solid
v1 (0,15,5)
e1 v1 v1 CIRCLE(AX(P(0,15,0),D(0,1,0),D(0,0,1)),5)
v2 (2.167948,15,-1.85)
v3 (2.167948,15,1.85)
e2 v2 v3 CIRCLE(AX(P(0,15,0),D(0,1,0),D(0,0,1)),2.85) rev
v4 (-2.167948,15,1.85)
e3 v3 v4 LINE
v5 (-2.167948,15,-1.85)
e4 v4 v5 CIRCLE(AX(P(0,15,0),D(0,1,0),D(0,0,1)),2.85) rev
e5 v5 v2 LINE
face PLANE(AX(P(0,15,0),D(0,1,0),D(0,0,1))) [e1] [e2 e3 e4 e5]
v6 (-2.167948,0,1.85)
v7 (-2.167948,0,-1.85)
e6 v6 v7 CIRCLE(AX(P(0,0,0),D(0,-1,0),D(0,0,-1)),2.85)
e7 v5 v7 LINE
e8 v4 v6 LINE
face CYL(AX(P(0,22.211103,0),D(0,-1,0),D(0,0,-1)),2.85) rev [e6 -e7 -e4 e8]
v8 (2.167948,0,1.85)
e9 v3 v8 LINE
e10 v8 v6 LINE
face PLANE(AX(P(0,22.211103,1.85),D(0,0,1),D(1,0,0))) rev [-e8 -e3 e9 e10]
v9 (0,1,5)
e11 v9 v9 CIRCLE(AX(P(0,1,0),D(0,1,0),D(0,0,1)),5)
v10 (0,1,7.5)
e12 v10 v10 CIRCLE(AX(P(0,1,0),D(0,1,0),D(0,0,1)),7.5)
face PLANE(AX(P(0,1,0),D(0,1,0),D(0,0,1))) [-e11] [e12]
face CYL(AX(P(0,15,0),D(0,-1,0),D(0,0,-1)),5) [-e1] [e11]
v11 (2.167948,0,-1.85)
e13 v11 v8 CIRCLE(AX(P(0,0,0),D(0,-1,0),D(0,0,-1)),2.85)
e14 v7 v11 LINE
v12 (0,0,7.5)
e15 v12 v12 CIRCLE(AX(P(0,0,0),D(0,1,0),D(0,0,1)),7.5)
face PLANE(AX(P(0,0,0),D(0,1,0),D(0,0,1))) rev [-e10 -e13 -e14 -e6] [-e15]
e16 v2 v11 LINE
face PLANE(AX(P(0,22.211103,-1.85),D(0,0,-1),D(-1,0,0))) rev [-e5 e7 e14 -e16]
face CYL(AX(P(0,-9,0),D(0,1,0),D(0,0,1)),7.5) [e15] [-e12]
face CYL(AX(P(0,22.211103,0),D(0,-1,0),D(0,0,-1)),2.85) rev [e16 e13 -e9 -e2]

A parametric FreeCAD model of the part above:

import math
import FreeCAD as App
import Part
import Sketcher
from FreeCAD import Vector

doc = App.newDocument("Part")
body = doc.addObject("PartDesign::Body", "Body")

# Sketch on XZ plane
sketch1 = body.newObject("Sketcher::SketchObject", "Sketch")
sketch1.AttachmentSupport = (doc.getObject("XZ_Plane"), [""])
sketch1.MapMode = "FlatFace"
sketch1.addGeometry(Part.Circle(Vector(0, 0, 0), Vector(0, 0, 1), 10), False)
sketch1.addConstraint([
    Sketcher.Constraint("Coincident", 0, 3, -1, 1),
    Sketcher.Constraint("Diameter", 0, 20.0),
])
pad1 = body.newObject("PartDesign::Pad", "Pad")
pad1.Profile = sketch1
pad1.Length = 1
pad1.Reversed = True

# Sketch on XZ plane
sketch2 = body.newObject("Sketcher::SketchObject", "Sketch001")
sketch2.AttachmentSupport = (doc.getObject("XZ_Plane"), [""])
sketch2.MapMode = "FlatFace"
sketch2.AttachmentOffset = App.Placement(Vector(0, 0, -1), App.Rotation())
sketch2.addGeometry(Part.Circle(Vector(0, 0, 0), Vector(0, 0, 1), 5), False)
sketch2.addConstraint([
    Sketcher.Constraint("Coincident", 0, 3, -1, 1),
    Sketcher.Constraint("Diameter", 0, 10.0),
])
pad2 = body.newObject("PartDesign::Pad", "Pad001")
pad2.Profile = sketch2
pad2.Length = 14
pad2.Reversed = True

# Sketch on XZ plane
sketch3 = body.newObject("Sketcher::SketchObject", "Sketch002")
sketch3.AttachmentSupport = (doc.getObject("XZ_Plane"), [""])
sketch3.MapMode = "FlatFace"
sketch3.AttachmentOffset = App.Placement(Vector(0, 0, -15), App.Rotation())
sketch3.addGeometry([
    Part.ArcOfCircle(Part.Circle(Vector(0, 0, 0), Vector(0, 0, 1), 3), math.radians(138.189685), math.radians(221.810315)),  # 0
    Part.LineSegment(Vector(-2.236068, 2, 0), Vector(2.236068, 2, 0)),  # 1
    Part.ArcOfCircle(Part.Circle(Vector(0, 0, 0), Vector(0, 0, 1), 3), math.radians(0), math.radians(41.810315)),  # 2
    Part.ArcOfCircle(Part.Circle(Vector(0, 0, 0), Vector(0, 0, 1), 3), math.radians(-41.810315), math.radians(0)),  # 3
    Part.LineSegment(Vector(2.236068, -2, 0), Vector(-2.236068, -2, 0)),  # 4
], False)
sketch3.addConstraint([
    Sketcher.Constraint("Coincident", 0, 1, 1, 1),
    Sketcher.Constraint("Coincident", 1, 2, 2, 2),
    Sketcher.Constraint("Tangent", 2, 1, 3, 2),
    Sketcher.Constraint("Coincident", 3, 1, 4, 1),
    Sketcher.Constraint("Coincident", 4, 2, 0, 2),
    Sketcher.Constraint("Horizontal", 1),
    Sketcher.Constraint("Horizontal", 4),
    Sketcher.Constraint("Coincident", 0, 3, -1, 1),
    Sketcher.Constraint("Coincident", 2, 3, -1, 1),
    Sketcher.Constraint("Equal", 0, 2),
    Sketcher.Constraint("Equal", 2, 3),
    Sketcher.Constraint("PointOnObject", 2, 1, -1),
    Sketcher.Constraint("Vertical", 1, 2, 3, 1),
    Sketcher.Constraint("Radius", 0, 3.0),
    Sketcher.Constraint("DistanceY", -1, 1, 0, 1, 2.0),
])
pocket1 = body.newObject("PartDesign::Pocket", "Pocket")
pocket1.Profile = sketch3
pocket1.Length = 19
pocket1.Reversed = True

# Sketch on XZ plane
sketch4 = body.newObject("Sketcher::SketchObject", "Sketch003")
sketch4.AttachmentSupport = (doc.getObject("XZ_Plane"), [""])
sketch4.MapMode = "FlatFace"
sketch4.AttachmentOffset = App.Placement(Vector(0, 0, -1), App.Rotation())
sketch4.addGeometry(Part.Circle(Vector(0, 0, 0), Vector(0, 0, 1), 12.5), False)
sketch4.addConstraint([
    Sketcher.Constraint("Coincident", 0, 3, -1, 1),
    Sketcher.Constraint("Diameter", 0, 25.0),
])
pad3 = body.newObject("PartDesign::Pad", "Pad002")
pad3.Profile = sketch4
pad3.Length = 1

# Sketch on XZ plane
sketch5 = body.newObject("Sketcher::SketchObject", "Sketch004")
sketch5.AttachmentSupport = (doc.getObject("XZ_Plane"), [""])
sketch5.MapMode = "FlatFace"
sketch5.AttachmentOffset = App.Placement(Vector(0, 0, -1), App.Rotation())
sketch5.addGeometry([
    Part.LineSegment(Vector(2.236068, -2, 0), Vector(-2.236068, -2, 0)),
    Part.ArcOfCircle(Part.Circle(Vector(0, 0, 0), Vector(0, 0, 1), 3), math.radians(138.189685), math.radians(221.810315)),
    Part.LineSegment(Vector(-2.236068, 2, 0), Vector(2.236068, 2, 0)),
    Part.ArcOfCircle(Part.Circle(Vector(0, 0, 0), Vector(0, 0, 1), 3), math.radians(-41.810315), math.radians(41.810315)),
], False)
sketch5.addConstraint([
    Sketcher.Constraint("Coincident", 0, 2, 1, 2),
    Sketcher.Constraint("Coincident", 1, 1, 2, 1),
    Sketcher.Constraint("Coincident", 2, 2, 3, 2),
    Sketcher.Constraint("Coincident", 3, 1, 0, 1),
    Sketcher.Constraint("Horizontal", 0),
    Sketcher.Constraint("Horizontal", 2),
    Sketcher.Constraint("Coincident", 1, 3, -1, 1),
    Sketcher.Constraint("Coincident", 3, 3, -1, 1),
    Sketcher.Constraint("Equal", 1, 3),
    Sketcher.Constraint("Vertical", 0, 2, 1, 1),
    Sketcher.Constraint("Radius", 1, 3.0),
    Sketcher.Constraint("DistanceY", 0, 2, -1, 1, 2.0),
])
pocket2 = body.newObject("PartDesign::Pocket", "Pocket001")
pocket2.Profile = sketch5
pocket2.Length = 19
pocket2.Reversed = True

# Sketch on XZ plane
sketch6 = body.newObject("Sketcher::SketchObject", "Sketch005")
sketch6.AttachmentSupport = (doc.getObject("XZ_Plane"), [""])
sketch6.MapMode = "FlatFace"
sketch6.AttachmentOffset = App.Placement(Vector(0, 0, -15), App.Rotation())
sketch6.addGeometry([
    Part.LineSegment(Vector(2.236068, 2, 0), Vector(-2.236068, 2, 0)),  # 0
    Part.ArcOfCircle(Part.Circle(Vector(0, 0, 0), Vector(0, 0, 1), 3), math.radians(138.189685), math.radians(221.810315)),  # 1
    Part.LineSegment(Vector(-2.236068, -2, 0), Vector(2.236068, -2, 0)),  # 2
    Part.ArcOfCircle(Part.Circle(Vector(0, 0, 0), Vector(0, 0, 1), 3), math.radians(-41.810315), math.radians(41.810315)),  # 3
    Part.LineSegment(Vector(2.167948, -1.85, 0), Vector(-2.167948, -1.85, 0)),  # 4
    Part.ArcOfCircle(Part.Circle(Vector(0, 0, 0), Vector(0, 0, 1), 2.85), math.radians(139.524502), math.radians(220.475498)),  # 5
    Part.LineSegment(Vector(-2.167948, 1.85, 0), Vector(2.167948, 1.85, 0)),  # 6
    Part.ArcOfCircle(Part.Circle(Vector(0, 0, 0), Vector(0, 0, 1), 2.85), math.radians(-40.475498), math.radians(40.475498)),  # 7
], False)
sketch6.addConstraint([
    Sketcher.Constraint("Coincident", 0, 2, 1, 1),
    Sketcher.Constraint("Coincident", 1, 2, 2, 1),
    Sketcher.Constraint("Coincident", 2, 2, 3, 1),
    Sketcher.Constraint("Coincident", 3, 2, 0, 1),
    Sketcher.Constraint("Coincident", 4, 2, 5, 2),
    Sketcher.Constraint("Coincident", 5, 1, 6, 1),
    Sketcher.Constraint("Coincident", 6, 2, 7, 2),
    Sketcher.Constraint("Coincident", 7, 1, 4, 1),
    Sketcher.Constraint("Horizontal", 0),
    Sketcher.Constraint("Horizontal", 2),
    Sketcher.Constraint("Horizontal", 4),
    Sketcher.Constraint("Horizontal", 6),
    Sketcher.Constraint("Coincident", 1, 3, -1, 1),
    Sketcher.Constraint("Coincident", 3, 3, -1, 1),
    Sketcher.Constraint("Coincident", 5, 3, -1, 1),
    Sketcher.Constraint("Coincident", 7, 3, -1, 1),
    Sketcher.Constraint("Equal", 1, 3),
    Sketcher.Constraint("Equal", 5, 7),
    Sketcher.Constraint("Vertical", 0, 2, 1, 2),
    Sketcher.Constraint("Vertical", 4, 2, 5, 1),
    Sketcher.Constraint("Radius", 1, 3.0),
    Sketcher.Constraint("Radius", 5, 2.85),
    Sketcher.Constraint("DistanceY", -1, 1, 0, 2, 2.0),
    Sketcher.Constraint("DistanceY", 4, 2, -1, 1, 1.85),
])
pad4 = body.newObject("PartDesign::Pad", "Pad003")
pad4.Profile = sketch6
pad4.Length = 15

# Sketch on XZ plane
sketch7 = body.newObject("Sketcher::SketchObject", "Sketch006")
sketch7.AttachmentSupport = (doc.getObject("XZ_Plane"), [""])
sketch7.MapMode = "FlatFace"
sketch7.AttachmentOffset = App.Placement(Vector(0, 0, -1), App.Rotation())
sketch7.addGeometry([
    Part.Circle(Vector(0, 0, 0), Vector(0, 0, 1), 12.5),
    Part.Circle(Vector(0, 0, 0), Vector(0, 0, 1), 7.5),
], False)
sketch7.addConstraint([
    Sketcher.Constraint("Coincident", 0, 3, -1, 1),
    Sketcher.Constraint("Coincident", 1, 3, -1, 1),
    Sketcher.Constraint("Diameter", 0, 25.0),
    Sketcher.Constraint("Diameter", 1, 15.0),
])
pocket3 = body.newObject("PartDesign::Pocket", "Pocket002")
pocket3.Profile = sketch7
pocket3.Length = 10
pocket3.Reversed = True
body2 = doc.addObject("PartDesign::Body", "Body001")

# Sketch on XZ plane
sketch8 = body2.newObject("Sketcher::SketchObject", "Sketch007")
sketch8.AttachmentSupport = (doc.getObject("XZ_Plane001"), [""])
sketch8.MapMode = "FlatFace"
sketch8.AttachmentOffset = App.Placement(Vector(0, 0, -15), App.Rotation())
sketch8.addGeometry([
    Part.LineSegment(Vector(-2.236068, 2, 0), Vector(2.236068, 2, 0)),
    Part.ArcOfCircle(Part.Circle(Vector(0, 0, 0), Vector(0, 0, 1), 3), math.radians(-41.810315), math.radians(41.810315)),
    Part.LineSegment(Vector(2.236068, -2, 0), Vector(-2.236068, -2, 0)),
    Part.ArcOfCircle(Part.Circle(Vector(0, 0, 0), Vector(0, 0, 1), 3), math.radians(138.189685), math.radians(221.810315)),
], False)
sketch8.addConstraint([
    Sketcher.Constraint("Coincident", 0, 2, 1, 2),
    Sketcher.Constraint("Coincident", 1, 1, 2, 1),
    Sketcher.Constraint("Coincident", 2, 2, 3, 2),
    Sketcher.Constraint("Coincident", 3, 1, 0, 1),
    Sketcher.Constraint("Horizontal", 0),
    Sketcher.Constraint("Horizontal", 2),
    Sketcher.Constraint("Coincident", 1, 3, -1, 1),
    Sketcher.Constraint("Coincident", 3, 3, -1, 1),
    Sketcher.Constraint("Equal", 1, 3),
    Sketcher.Constraint("Vertical", 0, 2, 1, 1),
    Sketcher.Constraint("Radius", 1, 3.0),
    Sketcher.Constraint("DistanceY", -1, 1, 0, 2, 2.0),
])
pad5 = body2.newObject("PartDesign::Pad", "Pad004")
pad5.Profile = sketch8
pad5.Length = 2
pad5.Reversed = True

# Sketch on XZ plane
sketch9 = body2.newObject("Sketcher::SketchObject", "Sketch008")
sketch9.AttachmentSupport = (doc.getObject("XZ_Plane001"), [""])
sketch9.MapMode = "FlatFace"
sketch9.AttachmentOffset = App.Placement(Vector(0, 0, -17), App.Rotation())
sketch9.addGeometry(Part.Circle(Vector(0, 0, 0), Vector(0, 0, 1), 7.5), False)
sketch9.addConstraint([
    Sketcher.Constraint("Coincident", 0, 3, -1, 1),
    Sketcher.Constraint("Diameter", 0, 15.0),
])
pad6 = body2.newObject("PartDesign::Pad", "Pad005")
pad6.Profile = sketch9
pad6.Length = 2
pad6.Reversed = True

# Sketch on XZ plane
sketch10 = body2.newObject("Sketcher::SketchObject", "Sketch009")
sketch10.AttachmentSupport = (doc.getObject("XZ_Plane001"), [""])
sketch10.MapMode = "FlatFace"
sketch10.AttachmentOffset = App.Placement(Vector(0, 0, -19), App.Rotation())
sketch10.addGeometry(Part.Circle(Vector(0, 0, 0), Vector(0, 0, 1), 1), False)
sketch10.addConstraint([
    Sketcher.Constraint("Coincident", 0, 3, -1, 1),
    Sketcher.Constraint("Diameter", 0, 2.0),
])
pocket4 = body2.newObject("PartDesign::Pocket", "Pocket003")
pocket4.Profile = sketch10
pocket4.Length = 25
pocket4.Reversed = True

# Sketch on XZ plane
sketch11 = body2.newObject("Sketcher::SketchObject", "Sketch010")
sketch11.AttachmentSupport = (doc.getObject("XZ_Plane001"), [""])
sketch11.MapMode = "FlatFace"
sketch11.AttachmentOffset = App.Placement(Vector(0, 0, -15), App.Rotation())
sketch11.addGeometry([
    Part.LineSegment(Vector(-2.12132, -1.75, 0), Vector(2.12132, -1.75, 0)),
    Part.ArcOfCircle(Part.Circle(Vector(0, 0, 0), Vector(0, 0, 1), 2.75), math.radians(-39.521196), math.radians(39.521196)),
    Part.LineSegment(Vector(2.12132, 1.75, 0), Vector(-2.12132, 1.75, 0)),
    Part.ArcOfCircle(Part.Circle(Vector(0, 0, 0), Vector(0, 0, 1), 2.75), math.radians(140.478804), math.radians(219.521196)),
], False)
sketch11.addConstraint([
    Sketcher.Constraint("Coincident", 0, 2, 1, 1),
    Sketcher.Constraint("Coincident", 1, 2, 2, 1),
    Sketcher.Constraint("Coincident", 2, 2, 3, 1),
    Sketcher.Constraint("Coincident", 3, 2, 0, 1),
    Sketcher.Constraint("Horizontal", 0),
    Sketcher.Constraint("Horizontal", 2),
    Sketcher.Constraint("Coincident", 1, 3, -1, 1),
    Sketcher.Constraint("Coincident", 3, 3, -1, 1),
    Sketcher.Constraint("Equal", 1, 3),
    Sketcher.Constraint("Vertical", 0, 2, 1, 2),
    Sketcher.Constraint("Radius", 1, 2.75),
    Sketcher.Constraint("DistanceY", 0, 2, 1, 2, 3.5),
])
pocket5 = body2.newObject("PartDesign::Pocket", "Pocket004")
pocket5.Profile = sketch11
pocket5.Length = 2

# Sketch on XZ plane
sketch12 = body2.newObject("Sketcher::SketchObject", "Sketch011")
sketch12.AttachmentSupport = (doc.getObject("XZ_Plane001"), [""])
sketch12.MapMode = "FlatFace"
sketch12.AttachmentOffset = App.Placement(Vector(0, 0, -17), App.Rotation())
sketch12.addGeometry([
    Part.LineSegment(Vector(-2.12132, -1.75, 0), Vector(2.12132, -1.75, 0)),
    Part.ArcOfCircle(Part.Circle(Vector(0, 0, 0), Vector(0, 0, 1), 2.75), math.radians(-39.521196), math.radians(39.521196)),
    Part.LineSegment(Vector(2.12132, 1.75, 0), Vector(-2.12132, 1.75, 0)),
    Part.ArcOfCircle(Part.Circle(Vector(0, 0, 0), Vector(0, 0, 1), 2.75), math.radians(140.478804), math.radians(219.521196)),
], False)
sketch12.addConstraint([
    Sketcher.Constraint("Coincident", 0, 2, 1, 1),
    Sketcher.Constraint("Coincident", 1, 2, 2, 1),
    Sketcher.Constraint("Coincident", 2, 2, 3, 1),
    Sketcher.Constraint("Coincident", 3, 2, 0, 1),
    Sketcher.Constraint("Horizontal", 0),
    Sketcher.Constraint("Horizontal", 2),
    Sketcher.Constraint("Coincident", 1, 3, -1, 1),
    Sketcher.Constraint("Coincident", 3, 3, -1, 1),
    Sketcher.Constraint("Equal", 1, 3),
    Sketcher.Constraint("Vertical", 0, 2, 1, 2),
    Sketcher.Constraint("Radius", 1, 2.75),
    Sketcher.Constraint("DistanceY", 0, 2, 1, 2, 3.5),
])
pad7 = body2.newObject("PartDesign::Pad", "Pad006")
pad7.Profile = sketch12
pad7.Length = 10

# Sketch on XZ plane
sketch13 = body2.newObject("Sketcher::SketchObject", "Sketch012")
sketch13.AttachmentSupport = (doc.getObject("XZ_Plane001"), [""])
sketch13.MapMode = "FlatFace"
sketch13.AttachmentOffset = App.Placement(Vector(0, 0, -17), App.Rotation())
sketch13.addGeometry(Part.Circle(Vector(0, 0, 0), Vector(0, 0, 1), 1), False)
sketch13.addConstraint([
    Sketcher.Constraint("Coincident", 0, 3, -1, 1),
    Sketcher.Constraint("Diameter", 0, 2.0),
])
pocket6 = body2.newObject("PartDesign::Pocket", "Pocket005")
pocket6.Profile = sketch13
pocket6.Length = 18
pocket6.Reversed = True

# Sketch on XZ plane
sketch14 = body2.newObject("Sketcher::SketchObject", "Sketch013")
sketch14.AttachmentSupport = (doc.getObject("XZ_Plane001"), [""])
sketch14.MapMode = "FlatFace"
sketch14.AttachmentOffset = App.Placement(Vector(0, 0, -7), App.Rotation())
sketch14.addGeometry([
    Part.LineSegment(Vector(-2.12132, -1.75, 0), Vector(2.12132, -1.75, 0)),  # 0
    Part.ArcOfCircle(Part.Circle(Vector(0, 0, 0), Vector(0, 0, 1), 2.75), math.radians(-39.521196), math.radians(39.521196)),  # 1
    Part.LineSegment(Vector(2.12132, 1.75, 0), Vector(-2.12132, 1.75, 0)),  # 2
    Part.ArcOfCircle(Part.Circle(Vector(0, 0, 0), Vector(0, 0, 1), 2.75), math.radians(140.478804), math.radians(219.521196)),  # 3
    Part.Circle(Vector(0, 0, 0), Vector(0, 0, 1), 1),  # 4
], False)
sketch14.addConstraint([
    Sketcher.Constraint("Coincident", 0, 2, 1, 1),
    Sketcher.Constraint("Coincident", 1, 2, 2, 1),
    Sketcher.Constraint("Coincident", 2, 2, 3, 1),
    Sketcher.Constraint("Coincident", 3, 2, 0, 1),
    Sketcher.Constraint("Horizontal", 0),
    Sketcher.Constraint("Horizontal", 2),
    Sketcher.Constraint("Coincident", 1, 3, -1, 1),
    Sketcher.Constraint("Coincident", 3, 3, -1, 1),
    Sketcher.Constraint("Coincident", 4, 3, -1, 1),
    Sketcher.Constraint("Equal", 1, 3),
    Sketcher.Constraint("Vertical", 0, 2, 1, 2),
    Sketcher.Constraint("Diameter", 4, 2.0),
    Sketcher.Constraint("Radius", 1, 2.75),
    Sketcher.Constraint("DistanceY", 0, 2, 1, 2, 3.5),
])
pad8 = body2.newObject("PartDesign::Pad", "Pad007")
pad8.Profile = sketch14
pad8.Length = 17
pad8.Reversed = True

# Sketch on XZ plane
sketch15 = body2.newObject("Sketcher::SketchObject", "Sketch014")
sketch15.AttachmentSupport = (doc.getObject("XZ_Plane001"), [""])
sketch15.MapMode = "FlatFace"
sketch15.AttachmentOffset = App.Placement(Vector(0, 0, -7), App.Rotation())
sketch15.addGeometry([
    Part.LineSegment(Vector(-2.12132, -1.75, 0), Vector(2.12132, -1.75, 0)),  # 0
    Part.ArcOfCircle(Part.Circle(Vector(0, 0, 0), Vector(0, 0, 1), 2.75), math.radians(-39.521196), math.radians(39.521196)),  # 1
    Part.LineSegment(Vector(2.12132, 1.75, 0), Vector(-2.12132, 1.75, 0)),  # 2
    Part.ArcOfCircle(Part.Circle(Vector(0, 0, 0), Vector(0, 0, 1), 2.75), math.radians(140.478804), math.radians(219.521196)),  # 3
    Part.Circle(Vector(0, 0, 0), Vector(0, 0, 1), 1),  # 4
], False)
sketch15.addConstraint([
    Sketcher.Constraint("Coincident", 0, 2, 1, 1),
    Sketcher.Constraint("Coincident", 1, 2, 2, 1),
    Sketcher.Constraint("Coincident", 2, 2, 3, 1),
    Sketcher.Constraint("Coincident", 3, 2, 0, 1),
    Sketcher.Constraint("Horizontal", 0),
    Sketcher.Constraint("Horizontal", 2),
    Sketcher.Constraint("Coincident", 1, 3, -1, 1),
    Sketcher.Constraint("Coincident", 3, 3, -1, 1),
    Sketcher.Constraint("Coincident", 4, 3, -1, 1),
    Sketcher.Constraint("Equal", 1, 3),
    Sketcher.Constraint("Vertical", 0, 2, 1, 2),
    Sketcher.Constraint("Diameter", 4, 2.0),
    Sketcher.Constraint("Radius", 1, 2.75),
    Sketcher.Constraint("DistanceY", 0, 2, 1, 2, 3.5),
])
pocket7 = body2.newObject("PartDesign::Pocket", "Pocket006")
pocket7.Profile = sketch15
pocket7.Length = 10

# Sketch on XZ plane
sketch16 = body2.newObject("Sketcher::SketchObject", "Sketch015")
sketch16.AttachmentSupport = (doc.getObject("XZ_Plane001"), [""])
sketch16.MapMode = "FlatFace"
sketch16.AttachmentOffset = App.Placement(Vector(0, 0, -17), App.Rotation())
sketch16.addGeometry([
    Part.LineSegment(Vector(-2.236068, -2, 0), Vector(2.236068, -2, 0)),
    Part.ArcOfCircle(Part.Circle(Vector(0, 0, 0), Vector(0, 0, 1), 3), math.radians(-41.810315), math.radians(41.810315)),
    Part.LineSegment(Vector(2.236068, 2, 0), Vector(-2.236068, 2, 0)),
    Part.ArcOfCircle(Part.Circle(Vector(0, 0, 0), Vector(0, 0, 1), 3), math.radians(138.189685), math.radians(221.810315)),
], False)
sketch16.addConstraint([
    Sketcher.Constraint("Coincident", 0, 2, 1, 1),
    Sketcher.Constraint("Coincident", 1, 2, 2, 1),
    Sketcher.Constraint("Coincident", 2, 2, 3, 1),
    Sketcher.Constraint("Coincident", 3, 2, 0, 1),
    Sketcher.Constraint("Horizontal", 0),
    Sketcher.Constraint("Horizontal", 2),
    Sketcher.Constraint("Coincident", 1, 3, -1, 1),
    Sketcher.Constraint("Coincident", 3, 3, -1, 1),
    Sketcher.Constraint("Equal", 1, 3),
    Sketcher.Constraint("Vertical", 0, 2, 1, 2),
    Sketcher.Constraint("Radius", 1, 3.0),
    Sketcher.Constraint("DistanceY", 0, 2, -1, 1, 2.0),
])
pocket8 = body2.newObject("PartDesign::Pocket", "Pocket007")
pocket8.Profile = sketch16
pocket8.Length = 2
pocket8.Reversed = True

# Sketch on XZ plane
sketch17 = body2.newObject("Sketcher::SketchObject", "Sketch016")
sketch17.AttachmentSupport = (doc.getObject("XZ_Plane001"), [""])
sketch17.MapMode = "FlatFace"
sketch17.AttachmentOffset = App.Placement(Vector(0, 0, -17), App.Rotation())
sketch17.addGeometry(Part.Circle(Vector(0, 0, 0), Vector(0, 0, 1), 7.5), False)
sketch17.addConstraint([
    Sketcher.Constraint("Coincident", 0, 3, -1, 1),
    Sketcher.Constraint("Diameter", 0, 15.0),
])
pad9 = body2.newObject("PartDesign::Pad", "Pad008")
pad9.Profile = sketch17
pad9.Length = 1.75

# Sketch on XZ plane
sketch18 = body2.newObject("Sketcher::SketchObject", "Sketch017")
sketch18.AttachmentSupport = (doc.getObject("XZ_Plane001"), [""])
sketch18.MapMode = "FlatFace"
sketch18.AttachmentOffset = App.Placement(Vector(0, 0, -19), App.Rotation())
sketch18.addGeometry([
    Part.Circle(Vector(0, 0, 0), Vector(0, 0, 1), 7.5),  # 0
    Part.LineSegment(Vector(2.12132, 1.75, 0), Vector(-2.12132, 1.75, 0)),  # 1
    Part.ArcOfCircle(Part.Circle(Vector(0, 0, 0), Vector(0, 0, 1), 2.75), math.radians(140.478804), math.radians(219.521196)),  # 2
    Part.LineSegment(Vector(-2.12132, -1.75, 0), Vector(2.12132, -1.75, 0)),  # 3
    Part.ArcOfCircle(Part.Circle(Vector(0, 0, 0), Vector(0, 0, 1), 2.75), math.radians(-39.521196), math.radians(39.521196)),  # 4
], False)
sketch18.addConstraint([
    Sketcher.Constraint("Coincident", 1, 2, 2, 1),
    Sketcher.Constraint("Coincident", 2, 2, 3, 1),
    Sketcher.Constraint("Coincident", 3, 2, 4, 1),
    Sketcher.Constraint("Coincident", 4, 2, 1, 1),
    Sketcher.Constraint("Horizontal", 1),
    Sketcher.Constraint("Horizontal", 3),
    Sketcher.Constraint("Coincident", 0, 3, -1, 1),
    Sketcher.Constraint("Coincident", 2, 3, -1, 1),
    Sketcher.Constraint("Coincident", 4, 3, -1, 1),
    Sketcher.Constraint("Equal", 2, 4),
    Sketcher.Constraint("Vertical", 1, 2, 2, 2),
    Sketcher.Constraint("Diameter", 0, 15.0),
    Sketcher.Constraint("Radius", 2, 2.75),
    Sketcher.Constraint("DistanceY", 2, 2, 1, 2, 3.5),
])
pocket9 = body2.newObject("PartDesign::Pocket", "Pocket008")
pocket9.Profile = sketch18
pocket9.Length = 1.75
pocket9.Reversed = True

# Sketch on XZ plane
sketch19 = body2.newObject("Sketcher::SketchObject", "Sketch018")
sketch19.AttachmentSupport = (doc.getObject("XZ_Plane001"), [""])
sketch19.MapMode = "FlatFace"
sketch19.AttachmentOffset = App.Placement(Vector(0, 0, -24), App.Rotation())
sketch19.addGeometry(Part.Circle(Vector(0, 0, 0), Vector(0, 0, 1), 1), False)
sketch19.addConstraint([
    Sketcher.Constraint("Coincident", 0, 3, -1, 1),
    Sketcher.Constraint("Diameter", 0, 2.0),
])
pocket10 = body2.newObject("PartDesign::Pocket", "Pocket009")
pocket10.Profile = sketch19
pocket10.Length = 8.75
pocket10.Reversed = True

# Sketch on XZ plane
sketch20 = body2.newObject("Sketcher::SketchObject", "Sketch019")
sketch20.AttachmentSupport = (doc.getObject("XZ_Plane001"), [""])
sketch20.MapMode = "FlatFace"
sketch20.AttachmentOffset = App.Placement(Vector(0, 0, -25.25), App.Rotation())
sketch20.addGeometry(Part.Circle(Vector(0, 0, 0), Vector(0, 0, 1), 7.5), False)
sketch20.addConstraint([
    Sketcher.Constraint("Coincident", 0, 3, -1, 1),
    Sketcher.Constraint("Diameter", 0, 15.0),
])
pocket11 = body2.newObject("PartDesign::Pocket", "Pocket010")
pocket11.Profile = sketch20
pocket11.Length = 10
pocket11.Reversed = True

doc.recompute()
